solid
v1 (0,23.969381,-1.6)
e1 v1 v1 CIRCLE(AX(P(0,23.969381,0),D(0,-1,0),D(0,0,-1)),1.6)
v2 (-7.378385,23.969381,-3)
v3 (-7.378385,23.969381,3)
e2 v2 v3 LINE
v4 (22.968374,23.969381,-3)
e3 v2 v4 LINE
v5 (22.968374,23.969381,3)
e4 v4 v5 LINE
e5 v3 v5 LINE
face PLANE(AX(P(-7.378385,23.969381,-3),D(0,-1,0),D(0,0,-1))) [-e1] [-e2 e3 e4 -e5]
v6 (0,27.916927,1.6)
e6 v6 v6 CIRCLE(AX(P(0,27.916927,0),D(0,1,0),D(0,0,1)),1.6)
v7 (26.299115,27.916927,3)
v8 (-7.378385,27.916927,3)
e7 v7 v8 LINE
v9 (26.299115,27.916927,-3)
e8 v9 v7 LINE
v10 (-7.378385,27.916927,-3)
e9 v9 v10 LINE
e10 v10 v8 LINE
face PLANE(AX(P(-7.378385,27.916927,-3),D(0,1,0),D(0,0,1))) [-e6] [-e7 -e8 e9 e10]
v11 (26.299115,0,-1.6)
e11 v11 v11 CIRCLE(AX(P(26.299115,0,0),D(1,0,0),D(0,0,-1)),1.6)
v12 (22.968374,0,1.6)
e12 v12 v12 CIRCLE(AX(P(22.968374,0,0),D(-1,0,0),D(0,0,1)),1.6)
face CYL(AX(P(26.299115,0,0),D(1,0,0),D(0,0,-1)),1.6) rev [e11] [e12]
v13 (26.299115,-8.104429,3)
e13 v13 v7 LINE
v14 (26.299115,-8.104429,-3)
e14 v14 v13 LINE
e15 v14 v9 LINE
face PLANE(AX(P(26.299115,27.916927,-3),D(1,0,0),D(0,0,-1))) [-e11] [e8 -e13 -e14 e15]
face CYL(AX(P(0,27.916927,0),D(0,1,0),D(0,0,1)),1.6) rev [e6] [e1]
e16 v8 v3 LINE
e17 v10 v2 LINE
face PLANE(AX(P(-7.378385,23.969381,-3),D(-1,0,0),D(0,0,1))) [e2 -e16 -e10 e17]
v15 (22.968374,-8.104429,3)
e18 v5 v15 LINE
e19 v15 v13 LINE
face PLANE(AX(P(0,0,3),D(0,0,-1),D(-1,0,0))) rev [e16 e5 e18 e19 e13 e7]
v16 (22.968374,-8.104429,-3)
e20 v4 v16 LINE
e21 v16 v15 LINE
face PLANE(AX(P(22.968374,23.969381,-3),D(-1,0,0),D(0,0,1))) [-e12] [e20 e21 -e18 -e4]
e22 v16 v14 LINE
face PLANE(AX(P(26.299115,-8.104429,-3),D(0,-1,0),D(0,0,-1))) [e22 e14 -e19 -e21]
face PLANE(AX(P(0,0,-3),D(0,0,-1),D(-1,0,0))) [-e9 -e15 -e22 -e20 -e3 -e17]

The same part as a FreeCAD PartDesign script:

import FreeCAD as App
import Part
import Sketcher

V = App.Vector
Q = App.Units.Quantity

doc = App.newDocument("Part")
body = doc.addObject("PartDesign::Body", "Body")

# Sketch on XY plane
sketch1 = doc.addObject("Sketcher::SketchObject", "Sketch")
body.addObject(sketch1)
sketch1.AttachmentSupport = (doc.XY_Plane, [""])
sketch1.MapMode = "FlatFace"
sketch1.addGeometry(Part.LineSegment(V(-7.378385, 23.969381, 0), V(22.968374, 23.969381, 0)), False)
sketch1.addGeometry(Part.LineSegment(V(22.968374, 23.969381, 0), V(22.968374, -8.104429, 0)), False)
sketch1.addGeometry(Part.LineSegment(V(22.968374, -8.104429, 0), V(26.299115, -8.104429, 0)), False)
sketch1.addGeometry(Part.LineSegment(V(26.299115, -8.104429, 0), V(26.299115, 27.916927, 0)), False)
sketch1.addGeometry(Part.LineSegment(V(26.299115, 27.916927, 0), V(-7.378385, 27.916927, 0)), False)
sketch1.addGeometry(Part.LineSegment(V(-7.378385, 27.916927, 0), V(-7.378385, 23.969381, 0)), False)
sketch1.addConstraint(Sketcher.Constraint("Coincident", 0, 2, 1, 1))
sketch1.addConstraint(Sketcher.Constraint("Coincident", 1, 2, 2, 1))
sketch1.addConstraint(Sketcher.Constraint("Coincident", 2, 2, 3, 1))
sketch1.addConstraint(Sketcher.Constraint("Coincident", 3, 2, 4, 1))
sketch1.addConstraint(Sketcher.Constraint("Coincident", 4, 2, 5, 1))
sketch1.addConstraint(Sketcher.Constraint("Coincident", 5, 2, 0, 1))
sketch1.addConstraint(Sketcher.Constraint("Horizontal", 0))
sketch1.addConstraint(Sketcher.Constraint("Vertical", 1))
sketch1.addConstraint(Sketcher.Constraint("Horizontal", 2))
sketch1.addConstraint(Sketcher.Constraint("Vertical", 3))
sketch1.addConstraint(Sketcher.Constraint("Horizontal", 4))
sketch1.addConstraint(Sketcher.Constraint("Vertical", 5))
sketch1.addConstraint(Sketcher.Constraint("DistanceX", 4, 2, 4, 1, Q("33.677501 mm")))
sketch1.addConstraint(Sketcher.Constraint("DistanceX", 0, 1, 0, 2, Q("30.346759 mm")))
sketch1.addConstraint(Sketcher.Constraint("DistanceY", 1, 2, 1, 1, Q("32.07381 mm")))
sketch1.addConstraint(Sketcher.Constraint("DistanceY", 3, 1, 3, 2, Q("36.021356 mm")))
sketch1.addConstraint(Sketcher.Constraint("DistanceY", -1, 1, 0, 2, Q("23.969381 mm")))
sketch1.addConstraint(Sketcher.Constraint("DistanceX", -1, 1, 0, 2, Q("22.968374 mm")))
pad1 = doc.addObject("PartDesign::Pad", "Pad")
body.addObject(pad1)
pad1.Profile = sketch1
pad1.Type = "TwoLengths"
pad1.Length = 3
pad1.Length2 = 3

# Sketch on XZ plane
sketch2 = doc.addObject("Sketcher::SketchObject", "Sketch001")
body.addObject(sketch2)
sketch2.AttachmentSupport = (doc.XZ_Plane, [""])
sketch2.MapMode = "FlatFace"
sketch2.AttachmentOffset = App.Placement(V(0, 0, -27.916927), App.Rotation())
sketch2.addGeometry(Part.Circle(V(0, 0, 0), V(0, 0, 1), 1.6), False)
sketch2.addConstraint(Sketcher.Constraint("Coincident", 0, 3, -1, 1))
sketch2.addConstraint(Sketcher.Constraint("Diameter", 0, Q("3.2 mm")))
doc.recompute()
hole = doc.addObject("PartDesign::Hole", "Hole")
body.addObject(hole)
hole.Profile = sketch2
hole.ThreadType = "None"
hole.Diameter = 3.2
hole.DepthType = "Dimension"
hole.Depth = 3.947546
hole.DrillPoint = "Flat"
hole.Reversed = True

# Sketch on YZ plane
sketch3 = doc.addObject("Sketcher::SketchObject", "Sketch002")
body.addObject(sketch3)
sketch3.AttachmentSupport = (doc.YZ_Plane, [""])
sketch3.MapMode = "FlatFace"
sketch3.AttachmentOffset = App.Placement(V(0, 0, 26.299115), App.Rotation())
sketch3.addGeometry(Part.Circle(V(0, 0, 0), V(0, 0, 1), 1.6), False)
sketch3.addConstraint(Sketcher.Constraint("Coincident", 0, 3, -1, 1))
sketch3.addConstraint(Sketcher.Constraint("Diameter", 0, Q("3.2 mm")))
doc.recompute()
hole2 = doc.addObject("PartDesign::Hole", "Hole001")
body.addObject(hole2)
hole2.Profile = sketch3
hole2.ThreadType = "None"
hole2.Diameter = 3.2
hole2.DepthType = "Dimension"
hole2.Depth = 3.330742
hole2.DrillPoint = "Flat"

doc.recompute()
